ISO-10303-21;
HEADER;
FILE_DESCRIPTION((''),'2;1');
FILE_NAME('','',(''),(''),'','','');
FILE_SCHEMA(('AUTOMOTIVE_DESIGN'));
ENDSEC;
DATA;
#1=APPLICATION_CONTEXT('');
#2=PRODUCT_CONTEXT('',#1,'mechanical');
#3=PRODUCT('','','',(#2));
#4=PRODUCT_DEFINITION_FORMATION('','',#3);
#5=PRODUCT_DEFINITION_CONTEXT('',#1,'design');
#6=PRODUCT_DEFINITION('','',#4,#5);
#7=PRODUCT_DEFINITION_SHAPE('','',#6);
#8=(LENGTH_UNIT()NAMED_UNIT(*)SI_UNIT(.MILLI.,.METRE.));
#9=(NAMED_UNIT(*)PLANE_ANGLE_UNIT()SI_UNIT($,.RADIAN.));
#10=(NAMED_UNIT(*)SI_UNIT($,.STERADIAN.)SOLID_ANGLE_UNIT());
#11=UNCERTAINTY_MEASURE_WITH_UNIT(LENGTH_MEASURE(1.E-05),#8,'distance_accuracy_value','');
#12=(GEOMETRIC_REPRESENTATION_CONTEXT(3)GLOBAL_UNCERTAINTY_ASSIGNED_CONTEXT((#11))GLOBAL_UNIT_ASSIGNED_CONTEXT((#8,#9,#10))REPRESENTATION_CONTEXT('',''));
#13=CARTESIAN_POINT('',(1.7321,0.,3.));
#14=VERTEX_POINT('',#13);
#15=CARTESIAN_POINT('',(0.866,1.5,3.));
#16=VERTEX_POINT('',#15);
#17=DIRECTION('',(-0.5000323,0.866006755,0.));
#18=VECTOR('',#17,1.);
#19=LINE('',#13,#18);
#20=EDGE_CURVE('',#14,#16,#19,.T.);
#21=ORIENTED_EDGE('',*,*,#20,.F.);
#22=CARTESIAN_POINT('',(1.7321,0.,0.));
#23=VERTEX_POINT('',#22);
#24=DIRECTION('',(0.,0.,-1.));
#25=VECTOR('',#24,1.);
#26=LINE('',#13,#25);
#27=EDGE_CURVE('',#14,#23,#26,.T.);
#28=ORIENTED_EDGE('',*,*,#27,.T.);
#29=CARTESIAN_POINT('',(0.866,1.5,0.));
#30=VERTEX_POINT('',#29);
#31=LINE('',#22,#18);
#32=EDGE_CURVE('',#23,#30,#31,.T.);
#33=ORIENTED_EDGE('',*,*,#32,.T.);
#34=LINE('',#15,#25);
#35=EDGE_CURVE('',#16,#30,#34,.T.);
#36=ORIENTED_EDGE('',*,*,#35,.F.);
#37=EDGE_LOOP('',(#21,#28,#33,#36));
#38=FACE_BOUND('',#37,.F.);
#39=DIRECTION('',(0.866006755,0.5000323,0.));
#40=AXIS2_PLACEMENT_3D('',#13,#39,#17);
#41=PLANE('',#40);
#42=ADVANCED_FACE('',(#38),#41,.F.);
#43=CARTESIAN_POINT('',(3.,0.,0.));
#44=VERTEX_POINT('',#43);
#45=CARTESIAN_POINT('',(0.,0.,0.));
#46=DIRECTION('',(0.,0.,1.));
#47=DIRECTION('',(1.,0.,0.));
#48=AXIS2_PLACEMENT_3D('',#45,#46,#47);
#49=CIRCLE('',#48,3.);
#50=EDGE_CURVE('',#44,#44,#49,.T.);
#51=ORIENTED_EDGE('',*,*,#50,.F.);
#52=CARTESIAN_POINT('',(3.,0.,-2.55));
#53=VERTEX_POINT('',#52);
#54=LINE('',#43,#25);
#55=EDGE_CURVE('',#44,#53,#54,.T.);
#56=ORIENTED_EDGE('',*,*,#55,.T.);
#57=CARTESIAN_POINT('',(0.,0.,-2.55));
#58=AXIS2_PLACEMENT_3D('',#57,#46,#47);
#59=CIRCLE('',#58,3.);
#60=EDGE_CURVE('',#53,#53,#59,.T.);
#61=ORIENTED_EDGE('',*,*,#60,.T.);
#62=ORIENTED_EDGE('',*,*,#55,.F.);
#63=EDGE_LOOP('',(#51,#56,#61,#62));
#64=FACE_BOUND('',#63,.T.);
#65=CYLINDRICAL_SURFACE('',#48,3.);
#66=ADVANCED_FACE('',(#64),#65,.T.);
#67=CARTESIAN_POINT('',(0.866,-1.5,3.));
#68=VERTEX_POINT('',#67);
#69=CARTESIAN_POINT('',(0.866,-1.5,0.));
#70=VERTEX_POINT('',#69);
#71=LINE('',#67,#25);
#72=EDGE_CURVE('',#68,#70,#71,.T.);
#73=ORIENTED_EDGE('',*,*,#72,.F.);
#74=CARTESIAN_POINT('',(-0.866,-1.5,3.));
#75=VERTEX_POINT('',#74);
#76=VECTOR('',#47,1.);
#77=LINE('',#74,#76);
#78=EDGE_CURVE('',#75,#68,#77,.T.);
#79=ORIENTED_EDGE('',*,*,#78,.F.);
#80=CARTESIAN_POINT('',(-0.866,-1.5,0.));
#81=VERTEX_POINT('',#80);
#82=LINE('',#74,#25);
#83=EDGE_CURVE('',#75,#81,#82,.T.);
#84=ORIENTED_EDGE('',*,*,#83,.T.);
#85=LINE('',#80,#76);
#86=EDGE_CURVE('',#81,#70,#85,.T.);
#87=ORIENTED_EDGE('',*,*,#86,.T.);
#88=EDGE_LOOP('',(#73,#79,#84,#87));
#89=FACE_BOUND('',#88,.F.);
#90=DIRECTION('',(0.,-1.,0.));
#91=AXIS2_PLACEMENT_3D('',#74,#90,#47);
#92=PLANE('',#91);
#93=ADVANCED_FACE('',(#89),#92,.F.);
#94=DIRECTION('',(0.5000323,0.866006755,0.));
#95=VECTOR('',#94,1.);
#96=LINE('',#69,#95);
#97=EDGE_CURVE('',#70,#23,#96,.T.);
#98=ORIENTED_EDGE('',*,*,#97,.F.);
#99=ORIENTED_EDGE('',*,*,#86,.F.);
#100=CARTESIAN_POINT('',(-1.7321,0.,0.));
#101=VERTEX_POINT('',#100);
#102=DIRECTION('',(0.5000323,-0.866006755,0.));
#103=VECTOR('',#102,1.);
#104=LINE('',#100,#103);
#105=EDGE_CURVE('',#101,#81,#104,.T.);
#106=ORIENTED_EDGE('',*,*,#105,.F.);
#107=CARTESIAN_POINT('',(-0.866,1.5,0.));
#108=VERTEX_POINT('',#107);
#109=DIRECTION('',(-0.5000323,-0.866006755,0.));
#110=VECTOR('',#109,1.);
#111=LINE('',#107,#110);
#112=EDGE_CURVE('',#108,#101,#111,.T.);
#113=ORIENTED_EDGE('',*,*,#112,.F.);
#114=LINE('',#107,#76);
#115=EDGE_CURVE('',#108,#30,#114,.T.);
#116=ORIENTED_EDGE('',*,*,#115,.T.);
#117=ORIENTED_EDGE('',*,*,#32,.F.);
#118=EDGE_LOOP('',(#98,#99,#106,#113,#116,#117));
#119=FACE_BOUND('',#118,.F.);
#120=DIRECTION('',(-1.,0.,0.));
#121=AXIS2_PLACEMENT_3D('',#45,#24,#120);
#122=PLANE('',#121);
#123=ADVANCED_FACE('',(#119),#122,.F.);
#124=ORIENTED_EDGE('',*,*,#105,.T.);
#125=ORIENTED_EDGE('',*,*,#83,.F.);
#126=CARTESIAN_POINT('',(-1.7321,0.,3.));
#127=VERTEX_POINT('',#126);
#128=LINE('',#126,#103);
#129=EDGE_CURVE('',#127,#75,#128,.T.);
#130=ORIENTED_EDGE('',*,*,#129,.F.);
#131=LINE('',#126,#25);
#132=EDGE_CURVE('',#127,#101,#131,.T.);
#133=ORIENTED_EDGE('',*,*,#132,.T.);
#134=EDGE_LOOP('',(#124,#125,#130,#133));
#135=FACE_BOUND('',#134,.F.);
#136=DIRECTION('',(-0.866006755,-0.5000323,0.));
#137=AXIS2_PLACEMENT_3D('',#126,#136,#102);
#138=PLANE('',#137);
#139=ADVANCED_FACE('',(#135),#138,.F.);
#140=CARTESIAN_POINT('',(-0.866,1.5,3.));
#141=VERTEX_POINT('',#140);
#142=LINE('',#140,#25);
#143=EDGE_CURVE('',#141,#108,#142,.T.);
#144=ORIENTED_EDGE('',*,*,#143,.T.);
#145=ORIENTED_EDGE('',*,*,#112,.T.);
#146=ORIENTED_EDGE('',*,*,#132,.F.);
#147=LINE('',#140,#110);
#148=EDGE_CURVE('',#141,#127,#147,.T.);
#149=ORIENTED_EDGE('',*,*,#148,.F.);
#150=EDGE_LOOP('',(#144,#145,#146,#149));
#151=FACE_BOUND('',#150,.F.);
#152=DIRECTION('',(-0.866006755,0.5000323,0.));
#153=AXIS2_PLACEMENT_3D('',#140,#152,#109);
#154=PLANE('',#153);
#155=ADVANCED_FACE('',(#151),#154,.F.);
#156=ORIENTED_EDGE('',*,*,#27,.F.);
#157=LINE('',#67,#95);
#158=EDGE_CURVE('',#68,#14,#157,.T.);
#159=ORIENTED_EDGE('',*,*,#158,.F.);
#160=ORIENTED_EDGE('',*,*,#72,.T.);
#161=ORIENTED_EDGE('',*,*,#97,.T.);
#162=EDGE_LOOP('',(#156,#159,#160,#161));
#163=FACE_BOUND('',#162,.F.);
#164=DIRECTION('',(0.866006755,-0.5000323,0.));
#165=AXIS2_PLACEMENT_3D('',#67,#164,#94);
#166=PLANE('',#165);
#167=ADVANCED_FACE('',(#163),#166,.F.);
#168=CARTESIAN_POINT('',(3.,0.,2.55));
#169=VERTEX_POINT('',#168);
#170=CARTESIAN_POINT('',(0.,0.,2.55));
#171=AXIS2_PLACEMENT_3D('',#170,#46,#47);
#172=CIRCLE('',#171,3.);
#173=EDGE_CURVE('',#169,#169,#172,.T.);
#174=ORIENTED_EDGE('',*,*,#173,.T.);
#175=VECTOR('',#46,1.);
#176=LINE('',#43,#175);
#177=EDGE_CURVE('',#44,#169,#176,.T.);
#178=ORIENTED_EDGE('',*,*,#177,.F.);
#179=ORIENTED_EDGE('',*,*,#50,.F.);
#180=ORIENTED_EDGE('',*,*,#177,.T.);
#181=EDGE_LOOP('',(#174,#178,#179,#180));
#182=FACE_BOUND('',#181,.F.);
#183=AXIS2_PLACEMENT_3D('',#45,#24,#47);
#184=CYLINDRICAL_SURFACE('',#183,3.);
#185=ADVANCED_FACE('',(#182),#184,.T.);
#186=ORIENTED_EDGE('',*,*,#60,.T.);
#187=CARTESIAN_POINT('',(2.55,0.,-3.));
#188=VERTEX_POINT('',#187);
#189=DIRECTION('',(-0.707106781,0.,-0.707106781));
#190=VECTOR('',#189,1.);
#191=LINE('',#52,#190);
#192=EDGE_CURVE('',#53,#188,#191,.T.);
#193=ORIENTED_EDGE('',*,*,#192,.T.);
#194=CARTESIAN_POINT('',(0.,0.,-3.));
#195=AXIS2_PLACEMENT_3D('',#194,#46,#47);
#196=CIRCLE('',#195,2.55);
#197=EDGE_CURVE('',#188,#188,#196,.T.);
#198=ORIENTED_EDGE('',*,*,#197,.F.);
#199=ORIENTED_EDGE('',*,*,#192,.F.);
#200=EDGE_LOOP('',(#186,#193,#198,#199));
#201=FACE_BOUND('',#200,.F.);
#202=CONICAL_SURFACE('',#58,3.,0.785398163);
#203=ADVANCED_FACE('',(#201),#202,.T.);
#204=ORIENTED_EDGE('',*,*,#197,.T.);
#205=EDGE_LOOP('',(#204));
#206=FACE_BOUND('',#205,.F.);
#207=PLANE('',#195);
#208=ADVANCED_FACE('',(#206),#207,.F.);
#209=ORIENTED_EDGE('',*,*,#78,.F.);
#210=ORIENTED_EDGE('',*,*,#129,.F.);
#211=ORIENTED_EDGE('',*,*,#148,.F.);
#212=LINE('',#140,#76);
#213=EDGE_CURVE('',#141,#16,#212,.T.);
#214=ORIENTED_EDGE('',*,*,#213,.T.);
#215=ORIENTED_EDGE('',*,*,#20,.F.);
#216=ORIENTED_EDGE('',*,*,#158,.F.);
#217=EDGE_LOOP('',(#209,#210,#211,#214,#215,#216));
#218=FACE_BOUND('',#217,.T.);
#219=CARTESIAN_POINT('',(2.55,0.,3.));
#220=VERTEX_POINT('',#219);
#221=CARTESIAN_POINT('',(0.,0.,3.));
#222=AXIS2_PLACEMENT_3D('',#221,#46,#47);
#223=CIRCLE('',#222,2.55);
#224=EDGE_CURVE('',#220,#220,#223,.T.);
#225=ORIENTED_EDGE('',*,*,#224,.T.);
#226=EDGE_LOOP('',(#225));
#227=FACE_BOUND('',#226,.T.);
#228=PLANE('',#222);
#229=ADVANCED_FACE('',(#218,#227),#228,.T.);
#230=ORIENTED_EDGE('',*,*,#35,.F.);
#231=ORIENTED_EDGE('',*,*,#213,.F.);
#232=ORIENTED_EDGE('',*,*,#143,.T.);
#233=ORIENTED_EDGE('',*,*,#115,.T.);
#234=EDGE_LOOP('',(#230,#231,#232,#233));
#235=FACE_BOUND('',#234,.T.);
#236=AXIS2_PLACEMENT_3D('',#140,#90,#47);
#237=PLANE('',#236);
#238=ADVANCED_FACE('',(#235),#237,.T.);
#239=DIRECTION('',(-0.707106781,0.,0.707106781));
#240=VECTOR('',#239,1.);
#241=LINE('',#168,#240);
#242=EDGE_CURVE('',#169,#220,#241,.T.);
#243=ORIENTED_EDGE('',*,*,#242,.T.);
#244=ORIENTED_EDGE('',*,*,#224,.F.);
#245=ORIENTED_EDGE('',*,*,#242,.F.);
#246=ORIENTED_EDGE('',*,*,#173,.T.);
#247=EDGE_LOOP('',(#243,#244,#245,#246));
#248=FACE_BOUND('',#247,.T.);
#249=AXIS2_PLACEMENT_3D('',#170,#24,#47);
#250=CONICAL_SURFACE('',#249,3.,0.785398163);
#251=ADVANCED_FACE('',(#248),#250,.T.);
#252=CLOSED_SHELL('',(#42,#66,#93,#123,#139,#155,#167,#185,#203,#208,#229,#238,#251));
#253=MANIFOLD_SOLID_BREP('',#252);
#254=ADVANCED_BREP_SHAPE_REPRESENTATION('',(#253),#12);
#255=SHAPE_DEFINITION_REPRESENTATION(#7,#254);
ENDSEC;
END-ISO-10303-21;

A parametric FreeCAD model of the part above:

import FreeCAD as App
import Part
import Sketcher
from FreeCAD import Vector


def edges_at(feature, points):
    """Names of the edges that pass closest to the given points."""
    edges = feature.Shape.Edges
    near = lambda p: min(range(len(edges)), key=lambda i: edges[i].distToShape(Part.Vertex(*p))[0])
    return sorted({f"Edge{near(p) + 1}" for p in points})


def add_polygon(sketch, points):
    """Adds a closed chain of lines whose ends are joined by coincident constraints."""
    first, n = sketch.GeometryCount, len(points)
    for a, b in zip(points, points[1:] + points[:1]):
        sketch.addGeometry(Part.LineSegment(App.Vector(*a, 0), App.Vector(*b, 0)), False)
    for i in range(n):
        sketch.addConstraint(Sketcher.Constraint("Coincident", first + i, 2, first + (i + 1) % n, 1))

doc = App.newDocument("Part")
body = doc.addObject("PartDesign::Body", "Body")

sketch1 = doc.addObject("Sketcher::SketchObject", "Sketch")
body.addObject(sketch1)
sketch1.AttachmentSupport = (doc.XY_Plane, [""])
sketch1.MapMode = "FlatFace"
sketch1.addGeometry(Part.Circle(Vector(0, 0, 0), Vector(0, 0, 1), 3), False)
sketch1.addConstraint(Sketcher.Constraint("Coincident", 0, 3, -1, 1))
sketch1.addConstraint(Sketcher.Constraint("Diameter", 0, 6.0))
pad1 = doc.addObject("PartDesign::Pad", "Pad")
body.addObject(pad1)
pad1.Profile = sketch1
pad1.Length = 6
pad1.Midplane = True
doc.recompute()

chamfer = doc.addObject("PartDesign::Chamfer", "Chamfer")
body.addObject(chamfer)
chamfer.Base = (pad1, edges_at(pad1, [(-3, 0, -3), (-3, 0, 3)]))
chamfer.Size = 0.45

sketch2 = doc.addObject("Sketcher::SketchObject", "Sketch001")
body.addObject(sketch2)
sketch2.AttachmentSupport = (doc.XY_Plane, [""])
sketch2.MapMode = "FlatFace"
sketch2.AttachmentOffset = App.Placement(Vector(0, 0, 3), App.Rotation())
add_polygon(sketch2, [(0.9, 1.5), (-0.9, 1.5), (-1.7, 0), (-0.9, -1.5), (0.9, -1.5), (1.7, 0)])
sketch2.addConstraint(Sketcher.Constraint("Horizontal", 0))
sketch2.addConstraint(Sketcher.Constraint("Horizontal", 3))
sketch2.addConstraint(Sketcher.Constraint("Symmetric", 0, 2, 3, 2, -1, 1))
sketch2.addConstraint(Sketcher.Constraint("Symmetric", 1, 2, 4, 2, -1, 1))
sketch2.addConstraint(Sketcher.Constraint("PointOnObject", 1, 2, -1))
sketch2.addConstraint(Sketcher.Constraint("Parallel", 2, 5))
sketch2.addConstraint(Sketcher.Constraint("Vertical", 0, 2, 2, 2))
sketch2.addConstraint(Sketcher.Constraint("DistanceY", 2, 2, 0, 2, 3.0))
sketch2.addConstraint(Sketcher.Constraint("DistanceX", 0, 2, 0, 1, 1.732))
sketch2.addConstraint(Sketcher.Constraint("Distance", 1, 1.732))
pocket1 = doc.addObject("PartDesign::Pocket", "Pocket")
body.addObject(pocket1)
pocket1.Profile = sketch2
pocket1.Length = 3

doc.recompute()
